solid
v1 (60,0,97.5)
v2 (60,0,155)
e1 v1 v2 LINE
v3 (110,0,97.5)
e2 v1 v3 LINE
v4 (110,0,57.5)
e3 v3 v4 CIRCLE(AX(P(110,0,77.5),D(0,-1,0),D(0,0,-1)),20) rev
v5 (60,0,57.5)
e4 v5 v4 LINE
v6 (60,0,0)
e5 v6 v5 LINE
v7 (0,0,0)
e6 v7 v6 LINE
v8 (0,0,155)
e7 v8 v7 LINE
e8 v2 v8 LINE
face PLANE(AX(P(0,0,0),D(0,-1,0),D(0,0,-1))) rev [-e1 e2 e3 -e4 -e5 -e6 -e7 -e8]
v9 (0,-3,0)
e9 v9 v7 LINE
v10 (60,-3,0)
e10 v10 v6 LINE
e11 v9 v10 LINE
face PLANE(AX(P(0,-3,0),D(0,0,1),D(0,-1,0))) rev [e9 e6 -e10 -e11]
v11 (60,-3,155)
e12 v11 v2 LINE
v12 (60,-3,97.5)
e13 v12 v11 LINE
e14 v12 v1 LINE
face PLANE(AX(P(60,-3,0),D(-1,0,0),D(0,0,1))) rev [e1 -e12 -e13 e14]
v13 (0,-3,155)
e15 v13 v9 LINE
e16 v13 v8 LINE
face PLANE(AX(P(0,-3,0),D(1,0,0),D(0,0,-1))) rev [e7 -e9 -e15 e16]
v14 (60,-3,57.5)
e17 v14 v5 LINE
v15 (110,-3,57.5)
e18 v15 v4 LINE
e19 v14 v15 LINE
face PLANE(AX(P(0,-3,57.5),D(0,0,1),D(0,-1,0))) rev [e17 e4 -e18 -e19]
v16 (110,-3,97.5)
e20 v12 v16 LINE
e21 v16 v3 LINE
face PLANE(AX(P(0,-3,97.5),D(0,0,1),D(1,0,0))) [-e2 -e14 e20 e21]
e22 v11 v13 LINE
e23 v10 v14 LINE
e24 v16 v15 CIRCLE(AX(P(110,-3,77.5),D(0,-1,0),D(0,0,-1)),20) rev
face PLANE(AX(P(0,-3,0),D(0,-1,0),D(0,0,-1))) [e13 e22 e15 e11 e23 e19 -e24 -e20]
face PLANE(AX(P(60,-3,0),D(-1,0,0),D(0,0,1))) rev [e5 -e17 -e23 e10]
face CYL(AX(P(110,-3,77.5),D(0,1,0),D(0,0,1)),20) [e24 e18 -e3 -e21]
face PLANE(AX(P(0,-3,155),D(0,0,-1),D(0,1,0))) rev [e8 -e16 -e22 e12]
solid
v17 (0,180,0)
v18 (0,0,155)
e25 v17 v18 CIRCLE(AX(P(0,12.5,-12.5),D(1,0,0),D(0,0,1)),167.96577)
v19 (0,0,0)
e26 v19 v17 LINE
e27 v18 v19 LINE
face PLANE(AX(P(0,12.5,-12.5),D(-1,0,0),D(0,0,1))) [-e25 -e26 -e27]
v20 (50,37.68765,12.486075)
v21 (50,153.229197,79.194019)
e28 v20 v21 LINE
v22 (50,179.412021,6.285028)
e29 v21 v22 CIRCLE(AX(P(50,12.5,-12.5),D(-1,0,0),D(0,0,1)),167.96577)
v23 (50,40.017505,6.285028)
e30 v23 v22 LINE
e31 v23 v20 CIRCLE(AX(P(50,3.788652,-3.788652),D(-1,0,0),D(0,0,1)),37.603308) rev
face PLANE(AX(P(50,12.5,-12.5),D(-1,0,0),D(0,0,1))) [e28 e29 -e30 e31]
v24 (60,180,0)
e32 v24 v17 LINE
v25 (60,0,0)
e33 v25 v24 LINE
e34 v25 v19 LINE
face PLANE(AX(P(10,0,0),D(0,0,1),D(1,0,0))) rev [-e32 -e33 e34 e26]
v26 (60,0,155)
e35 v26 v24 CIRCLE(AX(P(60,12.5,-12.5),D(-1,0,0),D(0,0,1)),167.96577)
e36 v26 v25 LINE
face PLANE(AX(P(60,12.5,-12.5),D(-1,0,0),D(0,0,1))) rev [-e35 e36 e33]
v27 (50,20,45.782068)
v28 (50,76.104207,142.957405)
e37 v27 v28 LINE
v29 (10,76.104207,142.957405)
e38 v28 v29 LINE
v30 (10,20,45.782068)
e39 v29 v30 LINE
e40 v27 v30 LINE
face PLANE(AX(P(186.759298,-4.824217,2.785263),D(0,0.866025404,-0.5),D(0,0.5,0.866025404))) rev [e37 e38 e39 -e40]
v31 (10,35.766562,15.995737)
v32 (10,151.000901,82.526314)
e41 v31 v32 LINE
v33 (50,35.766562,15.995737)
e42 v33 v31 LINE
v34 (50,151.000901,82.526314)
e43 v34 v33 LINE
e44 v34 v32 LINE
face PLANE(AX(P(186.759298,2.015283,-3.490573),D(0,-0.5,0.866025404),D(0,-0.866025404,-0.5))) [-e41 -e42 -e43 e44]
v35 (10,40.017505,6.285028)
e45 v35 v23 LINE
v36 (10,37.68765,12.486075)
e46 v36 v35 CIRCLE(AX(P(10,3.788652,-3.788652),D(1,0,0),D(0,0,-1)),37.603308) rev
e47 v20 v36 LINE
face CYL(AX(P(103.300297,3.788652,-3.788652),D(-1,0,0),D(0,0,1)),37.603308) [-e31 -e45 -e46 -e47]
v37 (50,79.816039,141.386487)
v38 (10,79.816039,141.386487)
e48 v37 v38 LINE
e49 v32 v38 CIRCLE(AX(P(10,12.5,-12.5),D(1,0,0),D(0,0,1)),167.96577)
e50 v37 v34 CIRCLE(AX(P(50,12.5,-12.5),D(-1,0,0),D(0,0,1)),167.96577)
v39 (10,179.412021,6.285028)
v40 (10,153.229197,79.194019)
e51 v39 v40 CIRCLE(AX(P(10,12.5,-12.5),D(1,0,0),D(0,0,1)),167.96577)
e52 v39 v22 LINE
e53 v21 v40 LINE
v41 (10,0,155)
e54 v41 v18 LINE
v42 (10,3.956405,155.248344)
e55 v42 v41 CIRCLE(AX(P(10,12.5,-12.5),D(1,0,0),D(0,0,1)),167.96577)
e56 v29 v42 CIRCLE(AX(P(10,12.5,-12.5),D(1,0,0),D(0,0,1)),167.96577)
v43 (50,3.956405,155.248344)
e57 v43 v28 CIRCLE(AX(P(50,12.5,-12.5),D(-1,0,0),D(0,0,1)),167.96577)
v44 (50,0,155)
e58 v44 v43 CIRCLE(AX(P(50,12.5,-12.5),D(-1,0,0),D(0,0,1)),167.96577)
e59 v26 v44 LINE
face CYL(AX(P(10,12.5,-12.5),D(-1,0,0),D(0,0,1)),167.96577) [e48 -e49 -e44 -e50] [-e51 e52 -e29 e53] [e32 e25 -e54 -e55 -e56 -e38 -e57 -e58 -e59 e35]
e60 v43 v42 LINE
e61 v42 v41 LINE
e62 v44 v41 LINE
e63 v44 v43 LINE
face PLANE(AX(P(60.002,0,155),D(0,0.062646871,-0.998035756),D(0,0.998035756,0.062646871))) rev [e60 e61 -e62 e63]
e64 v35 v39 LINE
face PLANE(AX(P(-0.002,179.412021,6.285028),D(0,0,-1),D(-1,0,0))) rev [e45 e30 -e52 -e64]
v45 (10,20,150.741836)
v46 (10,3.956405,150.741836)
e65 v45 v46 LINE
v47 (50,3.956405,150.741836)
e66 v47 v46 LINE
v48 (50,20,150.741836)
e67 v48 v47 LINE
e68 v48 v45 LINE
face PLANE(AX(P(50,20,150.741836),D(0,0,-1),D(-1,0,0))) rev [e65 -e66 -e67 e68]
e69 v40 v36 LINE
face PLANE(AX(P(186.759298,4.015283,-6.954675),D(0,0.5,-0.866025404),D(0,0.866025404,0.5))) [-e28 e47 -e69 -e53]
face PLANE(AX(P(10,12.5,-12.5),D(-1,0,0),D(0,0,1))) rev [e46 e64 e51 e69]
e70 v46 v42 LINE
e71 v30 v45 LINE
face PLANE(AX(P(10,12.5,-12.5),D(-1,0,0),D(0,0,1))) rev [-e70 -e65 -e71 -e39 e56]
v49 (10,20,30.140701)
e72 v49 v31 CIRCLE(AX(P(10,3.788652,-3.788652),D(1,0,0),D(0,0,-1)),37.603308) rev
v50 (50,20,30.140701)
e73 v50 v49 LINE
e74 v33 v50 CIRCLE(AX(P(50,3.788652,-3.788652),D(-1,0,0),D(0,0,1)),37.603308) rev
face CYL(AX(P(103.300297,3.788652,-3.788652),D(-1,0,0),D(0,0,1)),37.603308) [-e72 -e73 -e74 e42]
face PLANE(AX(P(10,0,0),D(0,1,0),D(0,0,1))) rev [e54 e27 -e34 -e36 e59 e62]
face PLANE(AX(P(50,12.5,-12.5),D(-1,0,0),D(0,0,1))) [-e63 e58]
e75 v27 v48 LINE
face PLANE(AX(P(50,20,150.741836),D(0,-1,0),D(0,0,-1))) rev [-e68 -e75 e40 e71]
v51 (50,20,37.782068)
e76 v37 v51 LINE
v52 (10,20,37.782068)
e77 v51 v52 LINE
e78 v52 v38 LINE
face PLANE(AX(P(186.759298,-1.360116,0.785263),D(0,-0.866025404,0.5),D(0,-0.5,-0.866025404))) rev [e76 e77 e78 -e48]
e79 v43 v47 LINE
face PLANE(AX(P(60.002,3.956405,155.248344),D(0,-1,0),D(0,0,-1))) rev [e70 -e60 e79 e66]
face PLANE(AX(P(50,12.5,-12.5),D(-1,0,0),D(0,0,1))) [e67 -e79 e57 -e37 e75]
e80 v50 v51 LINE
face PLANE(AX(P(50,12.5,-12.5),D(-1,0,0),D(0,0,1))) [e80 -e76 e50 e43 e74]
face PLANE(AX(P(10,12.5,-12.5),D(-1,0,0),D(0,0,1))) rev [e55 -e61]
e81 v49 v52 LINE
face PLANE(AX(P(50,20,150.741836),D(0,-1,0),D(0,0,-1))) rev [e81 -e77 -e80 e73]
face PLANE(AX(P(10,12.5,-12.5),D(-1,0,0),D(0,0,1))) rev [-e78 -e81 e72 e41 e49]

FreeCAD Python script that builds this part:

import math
import FreeCAD as App
import Part
import Sketcher
Q = App.Units.Quantity

doc = App.newDocument("Part")
body = doc.addObject("PartDesign::Body", "Body")

# Sketch on YZ plane
sketch1 = body.newObject("Sketcher::SketchObject", "Sketch")
sketch1.AttachmentSupport = (doc.getObject("YZ_Plane"), [""])
sketch1.MapMode = "FlatFace"
sketch1.addGeometry(Part.LineSegment(App.Vector(0, 155, 0), App.Vector(0, 0, 0)), False)
sketch1.addGeometry(Part.LineSegment(App.Vector(0, 0, 0), App.Vector(180, 0, 0)), False)
sketch1.addGeometry(Part.ArcOfCircle(Part.Circle(App.Vector(13, -12, 0), App.Vector(0, 0, 1), 168), math.radians(4), math.radians(94)), False)
sketch1.addConstraint(Sketcher.Constraint("Coincident", 0, 2, 1, 1))
sketch1.addConstraint(Sketcher.Constraint("Coincident", 1, 2, 2, 1))
sketch1.addConstraint(Sketcher.Constraint("Coincident", 2, 2, 0, 1))
sketch1.addConstraint(Sketcher.Constraint("Vertical", 0))
sketch1.addConstraint(Sketcher.Constraint("Horizontal", 1))
sketch1.addConstraint(Sketcher.Constraint("Coincident", 0, 2, -1, 1))
sketch1.addConstraint(Sketcher.Constraint("DistanceX", 1, 1, 1, 2, Q("180 mm")))
sketch1.addConstraint(Sketcher.Constraint("DistanceY", 0, 2, 0, 1, Q("155 mm")))
sketch1.addConstraint(Sketcher.Constraint("DistanceX", -1, 1, 2, 3, Q("12.5 mm")))
pad1 = body.newObject("PartDesign::Pad", "Pad")
pad1.Profile = sketch1
pad1.Length = 10

# Sketch on YZ plane
sketch2 = body.newObject("Sketcher::SketchObject", "Sketch001")
sketch2.AttachmentSupport = (doc.getObject("YZ_Plane"), [""])
sketch2.MapMode = "FlatFace"
sketch2.AttachmentOffset = App.Placement(App.Vector(0, 0, 10), App.Rotation())
sketch2.addGeometry(Part.LineSegment(App.Vector(20, 151, 0), App.Vector(0, 151, 0)), False)
sketch2.addGeometry(Part.LineSegment(App.Vector(0, 151, 0), App.Vector(0, 0, 0)), False)
sketch2.addGeometry(Part.LineSegment(App.Vector(0, 0, 0), App.Vector(20, 0, 0)), False)
sketch2.addGeometry(Part.LineSegment(App.Vector(20, 0, 0), App.Vector(20, 151, 0)), False)
sketch2.addConstraint(Sketcher.Constraint("Coincident", 0, 2, 1, 1))
sketch2.addConstraint(Sketcher.Constraint("Coincident", 1, 2, 2, 1))
sketch2.addConstraint(Sketcher.Constraint("Coincident", 2, 2, 3, 1))
sketch2.addConstraint(Sketcher.Constraint("Coincident", 3, 2, 0, 1))
sketch2.addConstraint(Sketcher.Constraint("Horizontal", 0))
sketch2.addConstraint(Sketcher.Constraint("Vertical", 1))
sketch2.addConstraint(Sketcher.Constraint("Horizontal", 2))
sketch2.addConstraint(Sketcher.Constraint("Vertical", 3))
sketch2.addConstraint(Sketcher.Constraint("Coincident", 1, 2, -1, 1))
sketch2.addConstraint(Sketcher.Constraint("DistanceX", 0, 2, 0, 1, Q("20 mm")))
sketch2.addConstraint(Sketcher.Constraint("DistanceY", 1, 2, 1, 1, Q("150.741836 mm")))
pad2 = body.newObject("PartDesign::Pad", "Pad001")
pad2.Profile = sketch2
pad2.Length = 40

# Sketch on YZ plane
sketch3 = body.newObject("Sketcher::SketchObject", "Sketch002")
sketch3.AttachmentSupport = (doc.getObject("YZ_Plane"), [""])
sketch3.MapMode = "FlatFace"
sketch3.AttachmentOffset = App.Placement(App.Vector(0, 0, 50), App.Rotation())
sketch3.addGeometry(Part.LineSegment(App.Vector(0, 155, 0), App.Vector(0, 0, 0)), False)
sketch3.addGeometry(Part.LineSegment(App.Vector(0, 0, 0), App.Vector(180, 0, 0)), False)
sketch3.addGeometry(Part.ArcOfCircle(Part.Circle(App.Vector(13, -12, 0), App.Vector(0, 0, 1), 168), math.radians(4), math.radians(94)), False)
sketch3.addConstraint(Sketcher.Constraint("Coincident", 0, 2, 1, 1))
sketch3.addConstraint(Sketcher.Constraint("Coincident", 1, 2, 2, 1))
sketch3.addConstraint(Sketcher.Constraint("Coincident", 2, 2, 0, 1))
sketch3.addConstraint(Sketcher.Constraint("Vertical", 0))
sketch3.addConstraint(Sketcher.Constraint("Horizontal", 1))
sketch3.addConstraint(Sketcher.Constraint("Coincident", 0, 2, -1, 1))
sketch3.addConstraint(Sketcher.Constraint("DistanceX", 1, 1, 1, 2, Q("180 mm")))
sketch3.addConstraint(Sketcher.Constraint("DistanceY", 0, 2, 0, 1, Q("155 mm")))
sketch3.addConstraint(Sketcher.Constraint("DistanceX", -1, 1, 2, 3, Q("12.5 mm")))
pad3 = body.newObject("PartDesign::Pad", "Pad002")
pad3.Profile = sketch3
pad3.Length = 10

# Sketch on YZ plane
sketch4 = body.newObject("Sketcher::SketchObject", "Sketch003")
sketch4.AttachmentSupport = (doc.getObject("YZ_Plane"), [""])
sketch4.MapMode = "FlatFace"
sketch4.AttachmentOffset = App.Placement(App.Vector(0, 0, 10), App.Rotation())
sketch4.addGeometry(Part.LineSegment(App.Vector(4, 155.2, 0), App.Vector(0, 155, 0)), False)
sketch4.addGeometry(Part.LineSegment(App.Vector(0, 155, 0), App.Vector(0, 150.7, 0)), False)
sketch4.addGeometry(Part.LineSegment(App.Vector(0, 150.7, 0), App.Vector(4, 150.7, 0)), False)
sketch4.addGeometry(Part.LineSegment(App.Vector(4, 150.7, 0), App.Vector(4, 155.2, 0)), False)
sketch4.addConstraint(Sketcher.Constraint("Coincident", 0, 2, 1, 1))
sketch4.addConstraint(Sketcher.Constraint("Coincident", 1, 2, 2, 1))
sketch4.addConstraint(Sketcher.Constraint("Coincident", 2, 2, 3, 1))
sketch4.addConstraint(Sketcher.Constraint("Coincident", 3, 2, 0, 1))
sketch4.addConstraint(Sketcher.Constraint("Vertical", 1))
sketch4.addConstraint(Sketcher.Constraint("Horizontal", 2))
sketch4.addConstraint(Sketcher.Constraint("Vertical", 3))
sketch4.addConstraint(Sketcher.Constraint("PointOnObject", 0, 2, -2))
sketch4.addConstraint(Sketcher.Constraint("DistanceY", -1, 1, 0, 2, Q("155 mm")))
sketch4.addConstraint(Sketcher.Constraint("DistanceX", 2, 1, 2, 2, Q("3.956405 mm")))
sketch4.addConstraint(Sketcher.Constraint("DistanceY", 1, 2, 1, 1, Q("4.258164 mm")))
sketch4.addConstraint(Sketcher.Constraint("DistanceY", 3, 1, 3, 2, Q("4.506508 mm")))
pad4 = body.newObject("PartDesign::Pad", "Pad003")
pad4.Profile = sketch4
pad4.Type = "UpToFirst"

# Sketch on YZ plane
sketch5 = body.newObject("Sketcher::SketchObject", "Sketch004")
sketch5.AttachmentSupport = (doc.getObject("YZ_Plane"), [""])
sketch5.MapMode = "FlatFace"
sketch5.AttachmentOffset = App.Placement(App.Vector(0, 0, 50), App.Rotation())
sketch5.addGeometry(Part.LineSegment(App.Vector(20, 6, 0), App.Vector(179, 6, 0)), False)
sketch5.addGeometry(Part.ArcOfCircle(Part.Circle(App.Vector(12, -13, 0), App.Vector(0, 0, 1), 168), math.radians(4.27), math.radians(6.42)), False)
sketch5.addGeometry(Part.LineSegment(App.Vector(180, 0, 0), App.Vector(20, 0, 0)), False)
sketch5.addGeometry(Part.LineSegment(App.Vector(20, 0, 0), App.Vector(20, 6, 0)), False)
sketch5.addConstraint(Sketcher.Constraint("Coincident", 0, 2, 1, 2))
sketch5.addConstraint(Sketcher.Constraint("Coincident", 1, 1, 2, 1))
sketch5.addConstraint(Sketcher.Constraint("Coincident", 2, 2, 3, 1))
sketch5.addConstraint(Sketcher.Constraint("Coincident", 3, 2, 0, 1))
sketch5.addConstraint(Sketcher.Constraint("Horizontal", 0))
sketch5.addConstraint(Sketcher.Constraint("Horizontal", 2))
sketch5.addConstraint(Sketcher.Constraint("Vertical", 3))
sketch5.addConstraint(Sketcher.Constraint("PointOnObject", 1, 1, -1))
sketch5.addConstraint(Sketcher.Constraint("DistanceX", 2, 2, 2, 1, Q("160 mm")))
sketch5.addConstraint(Sketcher.Constraint("DistanceX", -1, 1, 1, 1, Q("180 mm")))
sketch5.addConstraint(Sketcher.Constraint("DistanceX", -1, 1, 1, 3, Q("12.499998 mm")))
sketch5.addConstraint(Sketcher.Constraint("DistanceY", 1, 3, -1, 1, Q("12.5 mm")))
sketch5.addConstraint(Sketcher.Constraint("DistanceX", 0, 1, 0, 2, Q("159.412021 mm")))
pad5 = body.newObject("PartDesign::Pad", "Pad004")
pad5.Profile = sketch5
pad5.Type = "UpToFirst"
pad5.Reversed = True

# Sketch on YZ plane
sketch6 = body.newObject("Sketcher::SketchObject", "Sketch005")
sketch6.AttachmentSupport = (doc.getObject("YZ_Plane"), [""])
sketch6.MapMode = "FlatFace"
sketch6.AttachmentOffset = App.Placement(App.Vector(0, 0, 10), App.Rotation())
sketch6.addGeometry(Part.ArcOfCircle(Part.Circle(App.Vector(3.8, -3.8, 0), App.Vector(0, 0, 1), 37.6), math.radians(25.65), math.radians(31.74)), False)
sketch6.addGeometry(Part.LineSegment(App.Vector(37.7, 12.5, 0), App.Vector(153.2, 79.2, 0)), False)
sketch6.addGeometry(Part.ArcOfCircle(Part.Circle(App.Vector(12.5, -12.5, 0), App.Vector(0, 0, 1), 168), math.radians(33.09), math.radians(34.45)), False)
sketch6.addGeometry(Part.LineSegment(App.Vector(151, 82.5, 0), App.Vector(35.8, 16, 0)), False)
sketch6.addGeometry(Part.LineSegment(App.Vector(76.1, 143, 0), App.Vector(12.5, 32.8, 0)), False)
sketch6.addGeometry(Part.ArcOfCircle(Part.Circle(App.Vector(3.8, -3.8, 0), App.Vector(0, 0, 1), 37.6), math.radians(70.33), math.radians(76.6)), False)
sketch6.addGeometry(Part.LineSegment(App.Vector(16.4, 31.6, 0), App.Vector(79.8, 141.4, 0)), False)
sketch6.addGeometry(Part.ArcOfCircle(Part.Circle(App.Vector(12.5, -12.5, 0), App.Vector(0, 0, 1), 168), math.radians(66.37), math.radians(67.75)), False)
sketch6.addConstraint(Sketcher.Constraint("Coincident", 0, 1, 1, 1))
sketch6.addConstraint(Sketcher.Constraint("Coincident", 1, 2, 2, 1))
sketch6.addConstraint(Sketcher.Constraint("Coincident", 2, 2, 3, 1))
sketch6.addConstraint(Sketcher.Constraint("Coincident", 3, 2, 0, 2))
sketch6.addConstraint(Sketcher.Constraint("Coincident", 4, 2, 5, 2))
sketch6.addConstraint(Sketcher.Constraint("Coincident", 5, 1, 6, 1))
sketch6.addConstraint(Sketcher.Constraint("Coincident", 6, 2, 7, 1))
sketch6.addConstraint(Sketcher.Constraint("Coincident", 7, 2, 4, 1))
sketch6.addConstraint(Sketcher.Constraint("Coincident", 5, 3, 0, 3))
sketch6.addConstraint(Sketcher.Constraint("Coincident", 7, 3, 2, 3))
sketch6.addConstraint(Sketcher.Constraint("Equal", 0, 5))
sketch6.addConstraint(Sketcher.Constraint("Parallel", 1, 3))
sketch6.addConstraint(Sketcher.Constraint("Parallel", 4, 6))
sketch6.addConstraint(Sketcher.Constraint("Angle", 1, Q("30 deg")))
sketch6.addConstraint(Sketcher.Constraint("Angle", 4, Q("-120 deg")))
sketch6.addConstraint(Sketcher.Constraint("DistanceX", -1, 1, 4, 2, Q("12.5 mm")))
sketch6.addConstraint(Sketcher.Constraint("Radius", 0, Q("37.603309 mm")))
sketch6.addConstraint(Sketcher.Constraint("Radius", 2, Q("167.965774 mm")))
sketch6.addConstraint(Sketcher.Constraint("Radius", 7, Q("167.965776 mm")))
sketch6.addConstraint(Sketcher.Constraint("DistanceX", 0, 3, 0, 1, Q("33.898998 mm")))
sketch6.addConstraint(Sketcher.Constraint("DistanceX", -1, 1, 2, 2, Q("151.000901 mm")))
sketch6.addConstraint(Sketcher.Constraint("DistanceX", 2, 3, 1, 2, Q("140.7292 mm")))
sketch6.addConstraint(Sketcher.Constraint("DistanceY", 4, 2, 6, 2, Q("108.5948 mm")))
sketch6.addConstraint(Sketcher.Constraint("Distance", 6, Q("126.745791 mm")))
sketch6.addConstraint(Sketcher.Constraint("DistanceX", -1, 1, 0, 3, Q("3.788652 mm")))
sketch6.addConstraint(Sketcher.Constraint("DistanceY", 0, 3, -1, 1, Q("3.788652 mm")))
pad6 = body.newObject("PartDesign::Pad", "Pad005")
pad6.Profile = sketch6
pad6.Length = 40

# Sketch on YZ plane
sketch7 = body.newObject("Sketcher::SketchObject", "Sketch006")
sketch7.AttachmentSupport = (doc.getObject("YZ_Plane"), [""])
sketch7.MapMode = "FlatFace"
sketch7.AttachmentOffset = App.Placement(App.Vector(0, 0, 10), App.Rotation())
sketch7.addGeometry(Part.LineSegment(App.Vector(20, 6.3, 0), App.Vector(40, 6.3, 0)), False)
sketch7.addGeometry(Part.ArcOfCircle(Part.Circle(App.Vector(3.8, -3.8, 0), App.Vector(0, 0, 1), 37.6), math.radians(15.54), math.radians(25.65)), False)
sketch7.addGeometry(Part.ArcOfCircle(Part.Circle(App.Vector(3.8, -3.8, 0), App.Vector(0, 0, 1), 37.6), math.radians(25.65), math.radians(31.74)), False)
sketch7.addGeometry(Part.ArcOfCircle(Part.Circle(App.Vector(3.8, -3.8, 0), App.Vector(0, 0, 1), 37.6), math.radians(32), math.radians(64)), False)
sketch7.addGeometry(Part.LineSegment(App.Vector(20, 30.1, 0), App.Vector(20, 6.3, 0)), False)
sketch7.addConstraint(Sketcher.Constraint("Coincident", 0, 2, 1, 1))
sketch7.addConstraint(Sketcher.Constraint("Tangent", 1, 2, 2, 1))
sketch7.addConstraint(Sketcher.Constraint("Tangent", 2, 2, 3, 1))
sketch7.addConstraint(Sketcher.Constraint("Coincident", 3, 2, 4, 1))
sketch7.addConstraint(Sketcher.Constraint("Coincident", 4, 2, 0, 1))
sketch7.addConstraint(Sketcher.Constraint("Horizontal", 0))
sketch7.addConstraint(Sketcher.Constraint("Vertical", 4))
sketch7.addConstraint(Sketcher.Constraint("Coincident", 3, 3, 1, 3))
sketch7.addConstraint(Sketcher.Constraint("DistanceX", -1, 1, 3, 2, Q("20 mm")))
sketch7.addConstraint(Sketcher.Constraint("Radius", 1, Q("37.603308 mm")))
sketch7.addConstraint(Sketcher.Constraint("DistanceX", 2, 3, 1, 2, Q("33.898998 mm")))
sketch7.addConstraint(Sketcher.Constraint("DistanceY", -1, 1, 3, 2, Q("30.140701 mm")))
sketch7.addConstraint(Sketcher.Constraint("DistanceX", 0, 1, 0, 2, Q("20.017505 mm")))
sketch7.addConstraint(Sketcher.Constraint("DistanceY", 4, 2, 4, 1, Q("23.855673 mm")))
sketch7.addConstraint(Sketcher.Constraint("DistanceY", 1, 2, 2, 2, Q("3.509662 mm")))
pad7 = body.newObject("PartDesign::Pad", "Pad006")
pad7.Profile = sketch7
pad7.Length = 40
body2 = doc.addObject("PartDesign::Body", "Body001")

# Sketch on XZ plane
sketch8 = body2.newObject("Sketcher::SketchObject", "Sketch007")
sketch8.AttachmentSupport = (doc.getObject("XZ_Plane001"), [""])
sketch8.MapMode = "FlatFace"
sketch8.addGeometry(Part.LineSegment(App.Vector(110, 98, 0), App.Vector(60, 98, 0)), False)
sketch8.addGeometry(Part.LineSegment(App.Vector(60, 98, 0), App.Vector(60, 155, 0)), False)
sketch8.addGeometry(Part.LineSegment(App.Vector(60, 155, 0), App.Vector(0, 155, 0)), False)
sketch8.addGeometry(Part.LineSegment(App.Vector(0, 155, 0), App.Vector(0, 0, 0)), False)
sketch8.addGeometry(Part.LineSegment(App.Vector(0, 0, 0), App.Vector(60, 0, 0)), False)
sketch8.addGeometry(Part.LineSegment(App.Vector(60, 0, 0), App.Vector(60, 58, 0)), False)
sketch8.addGeometry(Part.LineSegment(App.Vector(60, 58, 0), App.Vector(110, 58, 0)), False)
sketch8.addGeometry(Part.ArcOfCircle(Part.Circle(App.Vector(110, 78, 0), App.Vector(0, 0, 1), 20), math.radians(-90), math.radians(90)), False)
sketch8.addConstraint(Sketcher.Constraint("Coincident", 0, 2, 1, 1))
sketch8.addConstraint(Sketcher.Constraint("Coincident", 1, 2, 2, 1))
sketch8.addConstraint(Sketcher.Constraint("Coincident", 2, 2, 3, 1))
sketch8.addConstraint(Sketcher.Constraint("Coincident", 3, 2, 4, 1))
sketch8.addConstraint(Sketcher.Constraint("Coincident", 4, 2, 5, 1))
sketch8.addConstraint(Sketcher.Constraint("Coincident", 5, 2, 6, 1))
sketch8.addConstraint(Sketcher.Constraint("Tangent", 6, 2, 7, 1))
sketch8.addConstraint(Sketcher.Constraint("Tangent", 7, 2, 0, 1))
sketch8.addConstraint(Sketcher.Constraint("Horizontal", 0))
sketch8.addConstraint(Sketcher.Constraint("Vertical", 1))
sketch8.addConstraint(Sketcher.Constraint("Horizontal", 2))
sketch8.addConstraint(Sketcher.Constraint("Vertical", 3))
sketch8.addConstraint(Sketcher.Constraint("Horizontal", 4))
sketch8.addConstraint(Sketcher.Constraint("Vertical", 5))
sketch8.addConstraint(Sketcher.Constraint("Horizontal", 6))
sketch8.addConstraint(Sketcher.Constraint("Coincident", 3, 2, -1, 1))
sketch8.addConstraint(Sketcher.Constraint("Vertical", 1, 2, 4, 2))
sketch8.addConstraint(Sketcher.Constraint("Equal", 1, 5))
sketch8.addConstraint(Sketcher.Constraint("Radius", 7, Q("20 mm")))
sketch8.addConstraint(Sketcher.Constraint("DistanceX", 0, 2, 0, 1, Q("50 mm")))
sketch8.addConstraint(Sketcher.Constraint("DistanceX", 2, 2, 2, 1, Q("60 mm")))
sketch8.addConstraint(Sketcher.Constraint("DistanceY", 3, 2, 3, 1, Q("155 mm")))
pad8 = body2.newObject("PartDesign::Pad", "Pad007")
pad8.Profile = sketch8
pad8.Length = 3

doc.recompute()
